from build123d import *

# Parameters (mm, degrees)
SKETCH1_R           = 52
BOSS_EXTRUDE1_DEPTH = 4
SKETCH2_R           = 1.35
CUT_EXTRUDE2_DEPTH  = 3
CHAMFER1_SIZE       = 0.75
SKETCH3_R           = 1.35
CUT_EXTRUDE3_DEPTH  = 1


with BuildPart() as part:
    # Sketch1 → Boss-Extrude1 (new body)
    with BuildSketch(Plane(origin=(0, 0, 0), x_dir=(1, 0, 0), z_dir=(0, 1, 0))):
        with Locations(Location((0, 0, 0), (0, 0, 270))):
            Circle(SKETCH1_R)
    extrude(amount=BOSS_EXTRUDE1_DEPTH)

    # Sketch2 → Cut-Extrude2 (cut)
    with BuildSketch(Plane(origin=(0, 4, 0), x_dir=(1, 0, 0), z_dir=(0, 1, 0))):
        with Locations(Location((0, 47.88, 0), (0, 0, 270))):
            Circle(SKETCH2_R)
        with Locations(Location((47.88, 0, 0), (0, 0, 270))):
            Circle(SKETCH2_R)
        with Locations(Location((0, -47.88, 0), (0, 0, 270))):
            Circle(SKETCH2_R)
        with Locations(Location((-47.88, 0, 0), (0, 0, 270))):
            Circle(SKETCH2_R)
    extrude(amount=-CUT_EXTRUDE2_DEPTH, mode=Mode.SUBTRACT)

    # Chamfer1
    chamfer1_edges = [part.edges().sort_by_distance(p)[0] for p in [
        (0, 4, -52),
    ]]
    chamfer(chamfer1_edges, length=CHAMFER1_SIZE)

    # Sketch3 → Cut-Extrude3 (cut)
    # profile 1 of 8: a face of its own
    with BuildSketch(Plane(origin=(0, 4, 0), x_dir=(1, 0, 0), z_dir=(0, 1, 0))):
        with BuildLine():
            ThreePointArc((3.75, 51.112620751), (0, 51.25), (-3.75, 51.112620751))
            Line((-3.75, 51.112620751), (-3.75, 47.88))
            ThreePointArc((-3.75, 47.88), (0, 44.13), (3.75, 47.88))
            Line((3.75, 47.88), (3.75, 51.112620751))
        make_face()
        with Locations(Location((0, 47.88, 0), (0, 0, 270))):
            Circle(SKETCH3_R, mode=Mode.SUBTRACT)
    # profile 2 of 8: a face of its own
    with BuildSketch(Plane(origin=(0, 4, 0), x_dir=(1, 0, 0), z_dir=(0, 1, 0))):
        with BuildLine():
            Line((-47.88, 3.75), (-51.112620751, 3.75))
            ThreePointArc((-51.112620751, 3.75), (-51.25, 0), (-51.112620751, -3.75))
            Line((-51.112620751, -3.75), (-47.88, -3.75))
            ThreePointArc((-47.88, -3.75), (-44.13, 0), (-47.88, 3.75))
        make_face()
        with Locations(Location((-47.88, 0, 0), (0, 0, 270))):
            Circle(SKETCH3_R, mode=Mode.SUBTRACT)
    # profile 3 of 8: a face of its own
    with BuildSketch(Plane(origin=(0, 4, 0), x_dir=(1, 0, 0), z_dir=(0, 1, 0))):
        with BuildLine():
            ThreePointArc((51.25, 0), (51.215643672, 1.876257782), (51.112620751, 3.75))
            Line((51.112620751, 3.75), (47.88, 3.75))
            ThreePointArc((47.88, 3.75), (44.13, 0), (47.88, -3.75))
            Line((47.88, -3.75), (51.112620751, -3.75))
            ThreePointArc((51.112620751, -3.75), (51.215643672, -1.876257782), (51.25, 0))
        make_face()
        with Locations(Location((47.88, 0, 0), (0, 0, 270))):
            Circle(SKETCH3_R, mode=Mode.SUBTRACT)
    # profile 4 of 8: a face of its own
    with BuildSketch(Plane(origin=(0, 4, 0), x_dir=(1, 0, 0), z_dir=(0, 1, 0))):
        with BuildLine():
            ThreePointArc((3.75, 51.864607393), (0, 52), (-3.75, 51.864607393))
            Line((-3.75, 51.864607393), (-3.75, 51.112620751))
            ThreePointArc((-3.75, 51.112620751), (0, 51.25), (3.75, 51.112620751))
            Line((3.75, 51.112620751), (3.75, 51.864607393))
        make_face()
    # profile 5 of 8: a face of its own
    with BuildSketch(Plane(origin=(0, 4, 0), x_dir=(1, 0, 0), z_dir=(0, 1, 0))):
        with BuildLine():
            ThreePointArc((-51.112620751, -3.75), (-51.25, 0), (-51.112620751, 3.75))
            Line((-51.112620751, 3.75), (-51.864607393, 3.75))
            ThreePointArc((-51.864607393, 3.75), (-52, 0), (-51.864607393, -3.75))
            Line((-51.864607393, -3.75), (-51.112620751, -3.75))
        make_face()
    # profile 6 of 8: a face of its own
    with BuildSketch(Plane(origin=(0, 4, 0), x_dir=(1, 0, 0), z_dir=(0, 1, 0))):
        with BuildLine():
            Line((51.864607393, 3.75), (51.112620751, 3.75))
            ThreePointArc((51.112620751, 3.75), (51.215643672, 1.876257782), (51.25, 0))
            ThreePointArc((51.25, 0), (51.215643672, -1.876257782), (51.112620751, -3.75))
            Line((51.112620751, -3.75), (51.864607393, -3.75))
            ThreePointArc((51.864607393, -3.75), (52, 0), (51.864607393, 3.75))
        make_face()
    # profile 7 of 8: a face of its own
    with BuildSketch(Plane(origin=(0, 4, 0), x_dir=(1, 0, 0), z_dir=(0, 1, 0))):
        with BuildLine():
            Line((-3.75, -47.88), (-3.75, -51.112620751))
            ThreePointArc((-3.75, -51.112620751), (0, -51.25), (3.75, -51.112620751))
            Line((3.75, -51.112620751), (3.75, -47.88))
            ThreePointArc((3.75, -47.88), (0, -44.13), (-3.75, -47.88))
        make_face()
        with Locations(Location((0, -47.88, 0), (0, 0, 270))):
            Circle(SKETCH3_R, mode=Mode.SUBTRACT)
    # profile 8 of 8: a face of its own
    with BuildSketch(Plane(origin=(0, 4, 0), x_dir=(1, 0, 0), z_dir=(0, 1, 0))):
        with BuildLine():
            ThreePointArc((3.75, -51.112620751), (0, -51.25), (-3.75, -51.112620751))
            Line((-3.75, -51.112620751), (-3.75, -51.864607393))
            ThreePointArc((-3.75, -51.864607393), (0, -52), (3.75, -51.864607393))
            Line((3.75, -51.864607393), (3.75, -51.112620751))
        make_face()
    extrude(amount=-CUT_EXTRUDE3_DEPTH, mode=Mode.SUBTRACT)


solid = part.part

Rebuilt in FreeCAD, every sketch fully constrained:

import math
import FreeCAD as App
import Part
import Sketcher
from FreeCAD import Vector


def edges_at(feature, points):
    """Names of the edges that pass closest to the given points."""
    edges = feature.Shape.Edges
    near = lambda p: min(range(len(edges)), key=lambda i: edges[i].distToShape(Part.Vertex(*p))[0])
    return sorted({f"Edge{near(p) + 1}" for p in points})

doc = App.newDocument("Part")
body = doc.addObject("PartDesign::Body", "Body")

sketch1 = doc.addObject("Sketcher::SketchObject", "Sketch")
body.addObject(sketch1)
sketch1.AttachmentSupport = (doc.XZ_Plane, [""])
sketch1.MapMode = "FlatFace"
sketch1.addGeometry(Part.Circle(Vector(0, 0, 0), Vector(0, 0, 1), 52), False)
sketch1.addConstraint(Sketcher.Constraint("Coincident", 0, 3, -1, 1))
sketch1.addConstraint(Sketcher.Constraint("Diameter", 0, 104.0))
pad1 = doc.addObject("PartDesign::Pad", "Pad")
body.addObject(pad1)
pad1.Profile = sketch1
pad1.Length = 4
pad1.Reversed = True

sketch2 = doc.addObject("Sketcher::SketchObject", "Sketch001")
body.addObject(sketch2)
sketch2.AttachmentSupport = (doc.XZ_Plane, [""])
sketch2.MapMode = "FlatFace"
sketch2.AttachmentOffset = App.Placement(Vector(0, 0, -4), App.Rotation())
sketch2.addGeometry(Part.Circle(Vector(0, -47.9, 0), Vector(0, 0, 1), 1.4), False)
sketch2.addGeometry(Part.Circle(Vector(47.9, 0, 0), Vector(0, 0, 1), 1.4), False)
sketch2.addGeometry(Part.Circle(Vector(0, 47.9, 0), Vector(0, 0, 1), 1.4), False)
sketch2.addGeometry(Part.Circle(Vector(-47.9, 0, 0), Vector(0, 0, 1), 1.4), False)
sketch2.addConstraint(Sketcher.Constraint("Equal", 0, 1))
sketch2.addConstraint(Sketcher.Constraint("Equal", 1, 2))
sketch2.addConstraint(Sketcher.Constraint("Equal", 2, 3))
sketch2.addConstraint(Sketcher.Constraint("Symmetric", 0, 3, 2, 3, -1, 1))
sketch2.addConstraint(Sketcher.Constraint("Symmetric", 1, 3, 3, 3, -1, 1))
sketch2.addConstraint(Sketcher.Constraint("PointOnObject", 0, 3, -2))
sketch2.addConstraint(Sketcher.Constraint("PointOnObject", 1, 3, -1))
sketch2.addConstraint(Sketcher.Constraint("Diameter", 0, 2.7))
sketch2.addConstraint(Sketcher.Constraint("DistanceY", 0, 3, -1, 1, 47.88))
sketch2.addConstraint(Sketcher.Constraint("DistanceX", -1, 1, 1, 3, 47.88))
pocket1 = doc.addObject("PartDesign::Pocket", "Pocket")
body.addObject(pocket1)
pocket1.Profile = sketch2
pocket1.Length = 3
pocket1.Reversed = True
doc.recompute()

chamfer = doc.addObject("PartDesign::Chamfer", "Chamfer")
body.addObject(chamfer)
chamfer.Base = (pocket1, edges_at(pocket1, [(0, 4, -52)]))
chamfer.Size = 0.75

sketch3 = doc.addObject("Sketcher::SketchObject", "Sketch002")
body.addObject(sketch3)
sketch3.AttachmentSupport = (doc.XZ_Plane, [""])
sketch3.MapMode = "FlatFace"
sketch3.AttachmentOffset = App.Placement(Vector(0, 0, -4), App.Rotation())
sketch3.addGeometry(Part.LineSegment(Vector(3.8, -47.9, 0), Vector(3.8, -51.9, 0)), False)
sketch3.addGeometry(Part.ArcOfCircle(Part.Circle(Vector(0, 0, 0), Vector(0, 0, 1), 52), math.radians(-94.14), math.radians(-85.86)), False)
sketch3.addGeometry(Part.LineSegment(Vector(-3.8, -51.9, 0), Vector(-3.8, -47.9, 0)), False)
sketch3.addGeometry(Part.ArcOfCircle(Part.Circle(Vector(0, -47.9, 0), Vector(0, 0, 1), 3.8), math.radians(0), math.radians(180)), False)
sketch3.addGeometry(Part.Circle(Vector(0, -47.9, 0), Vector(0, 0, 1), 1.4), False)
sketch3.addGeometry(Part.LineSegment(Vector(-47.9, -3.8, 0), Vector(-51.9, -3.8, 0)), False)
sketch3.addGeometry(Part.ArcOfCircle(Part.Circle(Vector(0, 0, 0), Vector(0, 0, 1), 52), math.radians(175.86), math.radians(184.14)), False)
sketch3.addGeometry(Part.LineSegment(Vector(-51.9, 3.8, 0), Vector(-47.9, 3.8, 0)), False)
sketch3.addGeometry(Part.ArcOfCircle(Part.Circle(Vector(-47.9, 0, 0), Vector(0, 0, 1), 3.8), math.radians(-90), math.radians(90)), False)
sketch3.addGeometry(Part.Circle(Vector(-47.9, 0, 0), Vector(0, 0, 1), 1.4), False)
sketch3.addGeometry(Part.ArcOfCircle(Part.Circle(Vector(47.9, 0, 0), Vector(0, 0, 1), 3.8), math.radians(90), math.radians(270)), False)
sketch3.addGeometry(Part.LineSegment(Vector(47.9, 3.8, 0), Vector(51.9, 3.8, 0)), False)
sketch3.addGeometry(Part.ArcOfCircle(Part.Circle(Vector(0, 0, 0), Vector(0, 0, 1), 52), math.radians(-4.14), math.radians(4.14)), False)
sketch3.addGeometry(Part.LineSegment(Vector(51.9, -3.8, 0), Vector(47.9, -3.8, 0)), False)
sketch3.addGeometry(Part.Circle(Vector(47.9, 0, 0), Vector(0, 0, 1), 1.4), False)
sketch3.addGeometry(Part.LineSegment(Vector(-3.8, 47.9, 0), Vector(-3.8, 51.9, 0)), False)
sketch3.addGeometry(Part.ArcOfCircle(Part.Circle(Vector(0, 0, 0), Vector(0, 0, 1), 52), math.radians(85.86), math.radians(94.14)), False)
sketch3.addGeometry(Part.LineSegment(Vector(3.8, 51.9, 0), Vector(3.8, 47.9, 0)), False)
sketch3.addGeometry(Part.ArcOfCircle(Part.Circle(Vector(0, 47.9, 0), Vector(0, 0, 1), 3.8), math.radians(180), math.radians(360)), False)
sketch3.addGeometry(Part.Circle(Vector(0, 47.9, 0), Vector(0, 0, 1), 1.4), False)
sketch3.addConstraint(Sketcher.Constraint("Coincident", 0, 2, 1, 2))
sketch3.addConstraint(Sketcher.Constraint("Coincident", 1, 1, 2, 1))
sketch3.addConstraint(Sketcher.Constraint("Tangent", 2, 2, 3, 2))
sketch3.addConstraint(Sketcher.Constraint("Tangent", 3, 1, 0, 1))
sketch3.addConstraint(Sketcher.Constraint("Coincident", 5, 2, 6, 2))
sketch3.addConstraint(Sketcher.Constraint("Coincident", 6, 1, 7, 1))
sketch3.addConstraint(Sketcher.Constraint("Tangent", 7, 2, 8, 2))
sketch3.addConstraint(Sketcher.Constraint("Tangent", 8, 1, 5, 1))
sketch3.addConstraint(Sketcher.Constraint("Tangent", 10, 1, 11, 1))
sketch3.addConstraint(Sketcher.Constraint("Coincident", 11, 2, 12, 2))
sketch3.addConstraint(Sketcher.Constraint("Coincident", 12, 1, 13, 1))
sketch3.addConstraint(Sketcher.Constraint("Tangent", 13, 2, 10, 2))
sketch3.addConstraint(Sketcher.Constraint("Coincident", 15, 2, 16, 2))
sketch3.addConstraint(Sketcher.Constraint("Coincident", 16, 1, 17, 1))
sketch3.addConstraint(Sketcher.Constraint("Tangent", 17, 2, 18, 2))
sketch3.addConstraint(Sketcher.Constraint("Tangent", 18, 1, 15, 1))
sketch3.addConstraint(Sketcher.Constraint("Vertical", 0))
sketch3.addConstraint(Sketcher.Constraint("Vertical", 2))
sketch3.addConstraint(Sketcher.Constraint("Horizontal", 5))
sketch3.addConstraint(Sketcher.Constraint("Horizontal", 7))
sketch3.addConstraint(Sketcher.Constraint("Horizontal", 11))
sketch3.addConstraint(Sketcher.Constraint("Horizontal", 13))
sketch3.addConstraint(Sketcher.Constraint("Vertical", 15))
sketch3.addConstraint(Sketcher.Constraint("Vertical", 17))
sketch3.addConstraint(Sketcher.Constraint("Coincident", 1, 3, -1, 1))
sketch3.addConstraint(Sketcher.Constraint("Coincident", 6, 3, -1, 1))
sketch3.addConstraint(Sketcher.Constraint("Coincident", 12, 3, -1, 1))
sketch3.addConstraint(Sketcher.Constraint("Coincident", 16, 3, -1, 1))
sketch3.addConstraint(Sketcher.Constraint("Coincident", 4, 3, 3, 3))
sketch3.addConstraint(Sketcher.Constraint("Coincident", 9, 3, 8, 3))
sketch3.addConstraint(Sketcher.Constraint("Coincident", 14, 3, 10, 3))
sketch3.addConstraint(Sketcher.Constraint("Coincident", 19, 3, 18, 3))
sketch3.addConstraint(Sketcher.Constraint("Equal", 1, 6))
sketch3.addConstraint(Sketcher.Constraint("Equal", 3, 8))
sketch3.addConstraint(Sketcher.Constraint("Equal", 4, 9))
sketch3.addConstraint(Sketcher.Constraint("Equal", 8, 10))
sketch3.addConstraint(Sketcher.Constraint("Equal", 6, 12))
sketch3.addConstraint(Sketcher.Constraint("Equal", 9, 14))
sketch3.addConstraint(Sketcher.Constraint("Equal", 12, 16))
sketch3.addConstraint(Sketcher.Constraint("Equal", 10, 18))
sketch3.addConstraint(Sketcher.Constraint("Equal", 14, 19))
sketch3.addConstraint(Sketcher.Constraint("Symmetric", 8, 3, 10, 3, -1, 1))
sketch3.addConstraint(Sketcher.Constraint("Symmetric", 3, 3, 18, 3, -1, 1))
sketch3.addConstraint(Sketcher.Constraint("PointOnObject", 3, 3, -2))
sketch3.addConstraint(Sketcher.Constraint("PointOnObject", 8, 3, -1))
sketch3.addConstraint(Sketcher.Constraint("Equal", 13, 0))
sketch3.addConstraint(Sketcher.Constraint("Radius", 1, 52.0))
sketch3.addConstraint(Sketcher.Constraint("Diameter", 4, 2.7))
sketch3.addConstraint(Sketcher.Constraint("Radius", 3, 3.75))
sketch3.addConstraint(Sketcher.Constraint("DistanceY", 3, 3, -1, 1, 47.88))
pocket2 = doc.addObject("PartDesign::Pocket", "Pocket001")
body.addObject(pocket2)
pocket2.Profile = sketch3
pocket2.Length = 1
pocket2.Reversed = True

doc.recompute()
